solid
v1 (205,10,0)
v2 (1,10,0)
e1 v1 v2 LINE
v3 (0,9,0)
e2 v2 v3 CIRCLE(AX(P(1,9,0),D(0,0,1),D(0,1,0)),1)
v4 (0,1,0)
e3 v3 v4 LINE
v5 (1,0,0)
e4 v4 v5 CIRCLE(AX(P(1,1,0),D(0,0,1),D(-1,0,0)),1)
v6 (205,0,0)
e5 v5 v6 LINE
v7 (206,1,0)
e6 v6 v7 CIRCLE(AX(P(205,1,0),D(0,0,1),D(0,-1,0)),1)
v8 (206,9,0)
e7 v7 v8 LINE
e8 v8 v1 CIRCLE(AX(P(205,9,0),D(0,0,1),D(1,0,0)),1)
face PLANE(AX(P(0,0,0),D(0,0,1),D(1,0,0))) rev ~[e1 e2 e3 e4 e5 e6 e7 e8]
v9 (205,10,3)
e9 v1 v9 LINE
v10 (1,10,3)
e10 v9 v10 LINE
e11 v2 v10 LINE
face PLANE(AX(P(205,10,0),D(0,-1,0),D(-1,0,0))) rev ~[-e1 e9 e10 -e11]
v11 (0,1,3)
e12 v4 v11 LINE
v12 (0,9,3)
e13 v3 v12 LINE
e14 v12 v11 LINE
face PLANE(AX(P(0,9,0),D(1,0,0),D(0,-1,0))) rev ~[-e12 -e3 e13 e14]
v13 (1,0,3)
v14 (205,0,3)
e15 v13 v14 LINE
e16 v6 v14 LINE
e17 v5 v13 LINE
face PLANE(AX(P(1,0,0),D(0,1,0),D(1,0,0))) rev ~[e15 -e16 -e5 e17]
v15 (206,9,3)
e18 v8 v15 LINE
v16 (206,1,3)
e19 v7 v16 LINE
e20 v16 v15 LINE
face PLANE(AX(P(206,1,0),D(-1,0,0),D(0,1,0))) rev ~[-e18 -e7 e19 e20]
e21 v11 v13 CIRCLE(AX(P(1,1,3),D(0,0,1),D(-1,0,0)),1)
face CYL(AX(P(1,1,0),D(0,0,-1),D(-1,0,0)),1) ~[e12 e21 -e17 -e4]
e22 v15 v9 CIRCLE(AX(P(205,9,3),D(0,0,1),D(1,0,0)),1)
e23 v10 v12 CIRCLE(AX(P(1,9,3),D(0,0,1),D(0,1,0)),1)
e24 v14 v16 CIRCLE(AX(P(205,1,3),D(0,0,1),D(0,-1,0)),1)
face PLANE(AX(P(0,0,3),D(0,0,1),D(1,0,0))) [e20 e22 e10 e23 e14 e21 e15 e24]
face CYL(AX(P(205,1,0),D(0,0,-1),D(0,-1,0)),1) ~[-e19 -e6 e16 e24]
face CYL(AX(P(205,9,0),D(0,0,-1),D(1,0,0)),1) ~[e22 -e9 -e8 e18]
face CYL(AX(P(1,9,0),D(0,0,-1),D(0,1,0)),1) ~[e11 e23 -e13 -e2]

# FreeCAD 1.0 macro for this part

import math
import FreeCAD as App
import Part
import Sketcher
Q = App.Units.Quantity

doc = App.newDocument("Part")
body = doc.addObject("PartDesign::Body", "Body")

# Sketch on XY plane
sketch1 = body.newObject("Sketcher::SketchObject", "Sketch")
sketch1.AttachmentSupport = (doc.getObject("XY_Plane"), [""])
sketch1.MapMode = "FlatFace"
sketch1.addGeometry(Part.ArcOfCircle(Part.Circle(App.Vector(1, 1, 0), App.Vector(0, 0, 1), 1), math.radians(180), math.radians(270)), False)
sketch1.addGeometry(Part.LineSegment(App.Vector(1, 0, 0), App.Vector(205, 0, 0)), False)
sketch1.addGeometry(Part.ArcOfCircle(Part.Circle(App.Vector(205, 1, 0), App.Vector(0, 0, 1), 1), math.radians(-90), math.radians(0)), False)
sketch1.addGeometry(Part.LineSegment(App.Vector(206, 1, 0), App.Vector(206, 9, 0)), False)
sketch1.addGeometry(Part.ArcOfCircle(Part.Circle(App.Vector(205, 9, 0), App.Vector(0, 0, 1), 1), math.radians(0), math.radians(90)), False)
sketch1.addGeometry(Part.LineSegment(App.Vector(205, 10, 0), App.Vector(1, 10, 0)), False)
sketch1.addGeometry(Part.ArcOfCircle(Part.Circle(App.Vector(1, 9, 0), App.Vector(0, 0, 1), 1), math.radians(90), math.radians(180)), False)
sketch1.addGeometry(Part.LineSegment(App.Vector(0, 9, 0), App.Vector(0, 1, 0)), False)
sketch1.addConstraint(Sketcher.Constraint("Tangent", 0, 2, 1, 1))
sketch1.addConstraint(Sketcher.Constraint("Tangent", 1, 2, 2, 1))
sketch1.addConstraint(Sketcher.Constraint("Tangent", 2, 2, 3, 1))
sketch1.addConstraint(Sketcher.Constraint("Tangent", 3, 2, 4, 1))
sketch1.addConstraint(Sketcher.Constraint("Tangent", 4, 2, 5, 1))
sketch1.addConstraint(Sketcher.Constraint("Tangent", 5, 2, 6, 1))
sketch1.addConstraint(Sketcher.Constraint("Tangent", 6, 2, 7, 1))
sketch1.addConstraint(Sketcher.Constraint("Tangent", 7, 2, 0, 1))
sketch1.addConstraint(Sketcher.Constraint("Horizontal", 1))
sketch1.addConstraint(Sketcher.Constraint("Vertical", 3))
sketch1.addConstraint(Sketcher.Constraint("Horizontal", 5))
sketch1.addConstraint(Sketcher.Constraint("Vertical", 7))
sketch1.addConstraint(Sketcher.Constraint("Equal", 0, 2))
sketch1.addConstraint(Sketcher.Constraint("Equal", 2, 4))
sketch1.addConstraint(Sketcher.Constraint("Equal", 4, 6))
sketch1.addConstraint(Sketcher.Constraint("PointOnObject", 0, 2, -1))
sketch1.addConstraint(Sketcher.Constraint("PointOnObject", 6, 2, -2))
sketch1.addConstraint(Sketcher.Constraint("Radius", 0, Q("1 mm")))
sketch1.addConstraint(Sketcher.Constraint("DistanceX", -1, 1, 2, 2, Q("206 mm")))
sketch1.addConstraint(Sketcher.Constraint("DistanceY", -1, 1, 4, 2, Q("10 mm")))
pad1 = body.newObject("PartDesign::Pad", "Pad")
pad1.Profile = sketch1
pad1.Length = 3

doc.recompute()
